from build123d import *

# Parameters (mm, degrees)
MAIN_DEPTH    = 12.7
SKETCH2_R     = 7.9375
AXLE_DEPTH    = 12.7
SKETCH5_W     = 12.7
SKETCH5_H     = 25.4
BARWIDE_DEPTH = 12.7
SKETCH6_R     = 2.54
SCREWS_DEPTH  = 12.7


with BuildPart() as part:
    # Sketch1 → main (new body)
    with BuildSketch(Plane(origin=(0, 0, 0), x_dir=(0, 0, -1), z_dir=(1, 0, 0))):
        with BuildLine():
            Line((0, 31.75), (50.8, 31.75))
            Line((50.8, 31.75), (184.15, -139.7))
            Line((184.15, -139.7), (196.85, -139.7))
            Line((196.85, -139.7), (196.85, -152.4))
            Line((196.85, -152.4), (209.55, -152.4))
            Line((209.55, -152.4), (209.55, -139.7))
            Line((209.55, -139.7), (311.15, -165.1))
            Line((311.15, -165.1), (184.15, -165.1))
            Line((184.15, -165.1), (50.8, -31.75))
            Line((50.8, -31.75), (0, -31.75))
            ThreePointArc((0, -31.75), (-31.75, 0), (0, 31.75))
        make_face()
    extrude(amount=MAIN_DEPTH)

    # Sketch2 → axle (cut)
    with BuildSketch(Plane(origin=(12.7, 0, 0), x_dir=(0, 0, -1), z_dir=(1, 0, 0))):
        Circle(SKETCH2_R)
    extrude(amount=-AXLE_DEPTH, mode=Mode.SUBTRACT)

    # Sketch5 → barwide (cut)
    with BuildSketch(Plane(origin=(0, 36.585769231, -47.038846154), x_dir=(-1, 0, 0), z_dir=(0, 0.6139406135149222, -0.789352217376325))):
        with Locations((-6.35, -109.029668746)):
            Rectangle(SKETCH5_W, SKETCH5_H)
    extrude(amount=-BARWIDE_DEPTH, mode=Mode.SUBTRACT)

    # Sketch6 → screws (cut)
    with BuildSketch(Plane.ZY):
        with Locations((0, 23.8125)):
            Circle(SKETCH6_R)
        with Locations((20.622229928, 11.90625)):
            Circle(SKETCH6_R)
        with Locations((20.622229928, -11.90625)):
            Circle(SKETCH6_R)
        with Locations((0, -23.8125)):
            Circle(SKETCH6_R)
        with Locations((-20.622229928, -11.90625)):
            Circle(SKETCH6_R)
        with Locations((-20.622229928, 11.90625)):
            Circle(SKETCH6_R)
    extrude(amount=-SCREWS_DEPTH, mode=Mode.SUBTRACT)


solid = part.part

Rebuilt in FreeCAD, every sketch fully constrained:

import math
import FreeCAD as App
import Part
import Sketcher
Q = App.Units.Quantity


def add_polygon(sketch, points):
    """Adds a closed chain of lines whose ends are joined by coincident constraints."""
    first, n = sketch.GeometryCount, len(points)
    for a, b in zip(points, points[1:] + points[:1]):
        sketch.addGeometry(Part.LineSegment(App.Vector(*a, 0), App.Vector(*b, 0)), False)
    for i in range(n):
        sketch.addConstraint(Sketcher.Constraint("Coincident", first + i, 2, first + (i + 1) % n, 1))

doc = App.newDocument("Part")
body = doc.addObject("PartDesign::Body", "Body")

# Sketch on YZ plane
sketch1 = body.newObject("Sketcher::SketchObject", "Sketch")
sketch1.AttachmentSupport = (doc.getObject("YZ_Plane"), [""])
sketch1.MapMode = "FlatFace"
sketch1.addGeometry(Part.LineSegment(App.Vector(31.75, -50.8, 0), App.Vector(31.75, 0, 0)), False)
sketch1.addGeometry(Part.ArcOfCircle(Part.Circle(App.Vector(0, 0, 0), App.Vector(0, 0, 1), 31.75), math.radians(0), math.radians(180)), False)
sketch1.addGeometry(Part.LineSegment(App.Vector(-31.75, 0, 0), App.Vector(-31.75, -50.8, 0)), False)
sketch1.addGeometry(Part.LineSegment(App.Vector(-31.75, -50.8, 0), App.Vector(-165.1, -184.15, 0)), False)
sketch1.addGeometry(Part.LineSegment(App.Vector(-165.1, -184.15, 0), App.Vector(-165.1, -311.15, 0)), False)
sketch1.addGeometry(Part.LineSegment(App.Vector(-165.1, -311.15, 0), App.Vector(-139.7, -209.55, 0)), False)
sketch1.addGeometry(Part.LineSegment(App.Vector(-139.7, -209.55, 0), App.Vector(-152.4, -209.55, 0)), False)
sketch1.addGeometry(Part.LineSegment(App.Vector(-152.4, -209.55, 0), App.Vector(-152.4, -196.85, 0)), False)
sketch1.addGeometry(Part.LineSegment(App.Vector(-152.4, -196.85, 0), App.Vector(-139.7, -196.85, 0)), False)
sketch1.addGeometry(Part.LineSegment(App.Vector(-139.7, -196.85, 0), App.Vector(-139.7, -184.15, 0)), False)
sketch1.addGeometry(Part.LineSegment(App.Vector(-139.7, -184.15, 0), App.Vector(31.75, -50.8, 0)), False)
sketch1.addConstraint(Sketcher.Constraint("Tangent", 0, 2, 1, 1))
sketch1.addConstraint(Sketcher.Constraint("Tangent", 1, 2, 2, 1))
sketch1.addConstraint(Sketcher.Constraint("Coincident", 2, 2, 3, 1))
sketch1.addConstraint(Sketcher.Constraint("Coincident", 3, 2, 4, 1))
sketch1.addConstraint(Sketcher.Constraint("Coincident", 4, 2, 5, 1))
sketch1.addConstraint(Sketcher.Constraint("Coincident", 5, 2, 6, 1))
sketch1.addConstraint(Sketcher.Constraint("Coincident", 6, 2, 7, 1))
sketch1.addConstraint(Sketcher.Constraint("Coincident", 7, 2, 8, 1))
sketch1.addConstraint(Sketcher.Constraint("Coincident", 8, 2, 9, 1))
sketch1.addConstraint(Sketcher.Constraint("Coincident", 9, 2, 10, 1))
sketch1.addConstraint(Sketcher.Constraint("Coincident", 10, 2, 0, 1))
sketch1.addConstraint(Sketcher.Constraint("Vertical", 0))
sketch1.addConstraint(Sketcher.Constraint("Vertical", 2))
sketch1.addConstraint(Sketcher.Constraint("Vertical", 4))
sketch1.addConstraint(Sketcher.Constraint("Horizontal", 6))
sketch1.addConstraint(Sketcher.Constraint("Vertical", 7))
sketch1.addConstraint(Sketcher.Constraint("Horizontal", 8))
sketch1.addConstraint(Sketcher.Constraint("Vertical", 9))
sketch1.addConstraint(Sketcher.Constraint("Coincident", 1, 3, -1, 1))
sketch1.addConstraint(Sketcher.Constraint("Horizontal", 3, 2, 9, 2))
sketch1.addConstraint(Sketcher.Constraint("Horizontal", 2, 2, 10, 2))
sketch1.addConstraint(Sketcher.Constraint("Vertical", 5, 2, 8, 2))
sketch1.addConstraint(Sketcher.Constraint("Equal", 8, 7))
sketch1.addConstraint(Sketcher.Constraint("Equal", 7, 9))
sketch1.addConstraint(Sketcher.Constraint("DistanceY", 0, 1, 0, 2, Q("2 in")))
sketch1.addConstraint(Sketcher.Constraint("DistanceY", 4, 2, 4, 1, Q("5 in")))
sketch1.addConstraint(Sketcher.Constraint("Radius", 1, Q("1.25 in")))
sketch1.addConstraint(Sketcher.Constraint("DistanceX", 6, 2, 6, 1, Q("0.5 in")))
sketch1.addConstraint(Sketcher.Constraint("DistanceX", 6, 2, -1, 1, Q("6 in")))
sketch1.addConstraint(Sketcher.Constraint("Angle", 3, Q("-135 deg")))
sketch1.addConstraint(Sketcher.Constraint("DistanceX", 3, 2, 5, 2, Q("1 in")))
pad1 = body.newObject("PartDesign::Pad", "Pad")
pad1.Profile = sketch1
pad1.Length = Q("0.5 in")

# Sketch on YZ plane
sketch2 = body.newObject("Sketcher::SketchObject", "Sketch001")
sketch2.AttachmentSupport = (doc.getObject("YZ_Plane"), [""])
sketch2.MapMode = "FlatFace"
sketch2.AttachmentOffset = App.Placement(App.Vector(0, 0, 0.5 * 25.4), App.Rotation())
sketch2.addGeometry(Part.Circle(App.Vector(0, 0, 0), App.Vector(0, 0, 1), 7.9375), False)
sketch2.addConstraint(Sketcher.Constraint("Coincident", 0, 3, -1, 1))
sketch2.addConstraint(Sketcher.Constraint("Diameter", 0, Q("0.625 in")))
pocket1 = body.newObject("PartDesign::Pocket", "Pocket")
pocket1.Profile = sketch2
pocket1.Length = Q("0.5 in")

# Sketch on an angled plane
sketch3 = body.newObject("Sketcher::SketchObject", "Sketch002")
sketch3.Placement = App.Placement(App.Vector(0, 36.585769, -47.038846), App.Rotation(App.Vector(-1, 0, 0), App.Vector(0, 0.789352217, 0.613940614), App.Vector(0, 0.613940614, -0.789352217), "ZXY"))
add_polygon(sketch3, [(-12.7, -96.329669), (-12.7, -121.729669), (0, -121.729669), (0, -96.329669)])  # lines 0-3
sketch3.addConstraint(Sketcher.Constraint("Vertical", 0))
sketch3.addConstraint(Sketcher.Constraint("Horizontal", 1))
sketch3.addConstraint(Sketcher.Constraint("Vertical", 2))
sketch3.addConstraint(Sketcher.Constraint("Horizontal", 3))
sketch3.addConstraint(Sketcher.Constraint("PointOnObject", 1, 2, -2))
sketch3.addConstraint(Sketcher.Constraint("DistanceY", 0, 2, 0, 1, Q("1 in")))
sketch3.addConstraint(Sketcher.Constraint("DistanceX", 1, 1, 1, 2, Q("0.5 in")))
sketch3.addConstraint(Sketcher.Constraint("DistanceY", 0, 2, -1, 1, Q("121.729669 mm")))
pocket2 = body.newObject("PartDesign::Pocket", "Pocket001")
pocket2.Profile = sketch3
pocket2.Length = Q("0.5 in")

# Sketch on YZ plane
sketch4 = body.newObject("Sketcher::SketchObject", "Sketch003")
sketch4.AttachmentSupport = (doc.getObject("YZ_Plane"), [""])
sketch4.MapMode = "FlatFace"
sketch4.addGeometry(Part.Circle(App.Vector(23.8125, 0, 0), App.Vector(0, 0, 1), 2.54), False)
sketch4.addGeometry(Part.Circle(App.Vector(11.90625, 20.62223, 0), App.Vector(0, 0, 1), 2.54), False)
sketch4.addGeometry(Part.Circle(App.Vector(-11.90625, 20.62223, 0), App.Vector(0, 0, 1), 2.54), False)
sketch4.addGeometry(Part.Circle(App.Vector(-23.8125, 0, 0), App.Vector(0, 0, 1), 2.54), False)
sketch4.addGeometry(Part.Circle(App.Vector(-11.90625, -20.62223, 0), App.Vector(0, 0, 1), 2.54), False)
sketch4.addGeometry(Part.Circle(App.Vector(11.90625, -20.62223, 0), App.Vector(0, 0, 1), 2.54), False)
sketch4.addConstraint(Sketcher.Constraint("Equal", 0, 1))
sketch4.addConstraint(Sketcher.Constraint("Equal", 1, 2))
sketch4.addConstraint(Sketcher.Constraint("Equal", 2, 3))
sketch4.addConstraint(Sketcher.Constraint("Equal", 3, 4))
sketch4.addConstraint(Sketcher.Constraint("Equal", 4, 5))
sketch4.addConstraint(Sketcher.Constraint("Symmetric", 0, 3, 3, 3, -1, 1))
sketch4.addConstraint(Sketcher.Constraint("Symmetric", 1, 3, 4, 3, -1, 1))
sketch4.addConstraint(Sketcher.Constraint("Symmetric", 2, 3, 5, 3, -1, 1))
sketch4.addConstraint(Sketcher.Constraint("Symmetric", 1, 3, 2, 3, -2))
sketch4.addConstraint(Sketcher.Constraint("PointOnObject", 0, 3, -1))
sketch4.addConstraint(Sketcher.Constraint("Diameter", 0, Q("0.2 in")))
sketch4.addConstraint(Sketcher.Constraint("DistanceX", -1, 1, 0, 3, Q("0.9375 in")))
sketch4.addConstraint(Sketcher.Constraint("DistanceX", -1, 1, 1, 3, Q("0.46875 in")))
sketch4.addConstraint(Sketcher.Constraint("DistanceY", -1, 1, 1, 3, Q("20.62223 mm")))
pocket3 = body.newObject("PartDesign::Pocket", "Pocket002")
pocket3.Profile = sketch4
pocket3.Length = Q("0.5 in")
pocket3.Reversed = True

doc.recompute()
